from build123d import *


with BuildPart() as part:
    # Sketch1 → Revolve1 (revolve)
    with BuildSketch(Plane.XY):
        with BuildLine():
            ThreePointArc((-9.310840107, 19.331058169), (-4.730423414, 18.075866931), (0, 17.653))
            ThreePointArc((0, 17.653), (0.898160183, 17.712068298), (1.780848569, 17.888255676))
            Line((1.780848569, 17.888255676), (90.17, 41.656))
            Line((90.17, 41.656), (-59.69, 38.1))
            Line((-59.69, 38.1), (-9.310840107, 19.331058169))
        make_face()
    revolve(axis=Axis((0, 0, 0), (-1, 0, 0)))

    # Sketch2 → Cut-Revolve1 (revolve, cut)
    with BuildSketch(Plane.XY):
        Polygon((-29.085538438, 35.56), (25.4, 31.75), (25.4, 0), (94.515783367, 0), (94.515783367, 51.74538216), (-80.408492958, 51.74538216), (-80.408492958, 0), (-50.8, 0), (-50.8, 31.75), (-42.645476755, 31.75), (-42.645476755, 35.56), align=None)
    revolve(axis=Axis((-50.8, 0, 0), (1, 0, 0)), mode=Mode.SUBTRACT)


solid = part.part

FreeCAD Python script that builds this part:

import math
import FreeCAD as App
import Part
import Sketcher

V = App.Vector
Q = App.Units.Quantity


def add_polygon(sketch, points):
    """Adds a closed chain of lines whose ends are joined by coincident constraints."""
    first, n = sketch.GeometryCount, len(points)
    for a, b in zip(points, points[1:] + points[:1]):
        sketch.addGeometry(Part.LineSegment(App.Vector(*a, 0), App.Vector(*b, 0)), False)
    for i in range(n):
        sketch.addConstraint(Sketcher.Constraint("Coincident", first + i, 2, first + (i + 1) % n, 1))

doc = App.newDocument("Part")
body = doc.addObject("PartDesign::Body", "Body")

# Sketch on XY plane
sketch1 = body.newObject("Sketcher::SketchObject", "Sketch")
sketch1.AttachmentSupport = (doc.getObject("XY_Plane"), [""])
sketch1.MapMode = "FlatFace"
sketch1.addGeometry(Part.ArcOfCircle(Part.Circle(V(0, 44.323, 0), V(0, 0, 1), 26.67), math.radians(-110.433064), math.radians(-90)), False)
sketch1.addGeometry(Part.ArcOfCircle(Part.Circle(V(0, 24.511, 0), V(0, 0, 1), 6.858), math.radians(-90), math.radians(-74.949244)), False)
sketch1.addGeometry(Part.LineSegment(V(1.780849, 17.888256, 0), V(90.17, 41.656, 0)), False)
sketch1.addGeometry(Part.LineSegment(V(90.17, 41.656, 0), V(-59.69, 38.1, 0)), False)
sketch1.addGeometry(Part.LineSegment(V(-59.69, 38.1, 0), V(-9.31084, 19.331058, 0)), False)
sketch1.addConstraint(Sketcher.Constraint("Tangent", 0, 2, 1, 1))
sketch1.addConstraint(Sketcher.Constraint("Tangent", 1, 2, 2, 1))
sketch1.addConstraint(Sketcher.Constraint("Coincident", 2, 2, 3, 1))
sketch1.addConstraint(Sketcher.Constraint("Coincident", 3, 2, 4, 1))
sketch1.addConstraint(Sketcher.Constraint("Tangent", 4, 2, 0, 1))
sketch1.addConstraint(Sketcher.Constraint("PointOnObject", 0, 3, -2))
sketch1.addConstraint(Sketcher.Constraint("PointOnObject", 1, 3, -2))
sketch1.addConstraint(Sketcher.Constraint("Radius", 0, Q("1.05 in")))
sketch1.addConstraint(Sketcher.Constraint("Radius", 1, Q("0.27 in")))
sketch1.addConstraint(Sketcher.Constraint("DistanceY", -1, 1, 3, 2, Q("1.5 in")))
sketch1.addConstraint(Sketcher.Constraint("DistanceX", 3, 2, 2, 2, Q("5.9 in")))
sketch1.addConstraint(Sketcher.Constraint("DistanceX", -1, 1, 2, 2, Q("3.55 in")))
sketch1.addConstraint(Sketcher.Constraint("DistanceY", -1, 1, 2, 2, Q("1.64 in")))
sketch1.addConstraint(Sketcher.Constraint("DistanceY", -1, 1, 0, 3, Q("1.745 in")))
revolution = body.newObject("PartDesign::Revolution", "Revolution")
revolution.Profile = sketch1
revolution.ReferenceAxis = (sketch1, ["H_Axis"])
revolution.Angle = 360

# Sketch on XY plane
sketch2 = body.newObject("Sketcher::SketchObject", "Sketch001")
sketch2.AttachmentSupport = (doc.getObject("XY_Plane"), [""])
sketch2.MapMode = "FlatFace"
add_polygon(sketch2, [(-29.085538, 35.56), (25.4, 31.75), (25.4, 0), (94.515783, 0), (94.515783, 51.745382), (-80.408493, 51.745382), (-80.408493, 0), (-50.8, 0), (-50.8, 31.75), (-42.645477, 31.75), (-42.645477, 35.56)])  # lines 0-10
sketch2.addConstraint(Sketcher.Constraint("Vertical", 1))
sketch2.addConstraint(Sketcher.Constraint("Horizontal", 2))
sketch2.addConstraint(Sketcher.Constraint("Vertical", 3))
sketch2.addConstraint(Sketcher.Constraint("Horizontal", 4))
sketch2.addConstraint(Sketcher.Constraint("Vertical", 5))
sketch2.addConstraint(Sketcher.Constraint("Horizontal", 6))
sketch2.addConstraint(Sketcher.Constraint("Vertical", 7))
sketch2.addConstraint(Sketcher.Constraint("Horizontal", 8))
sketch2.addConstraint(Sketcher.Constraint("Vertical", 9))
sketch2.addConstraint(Sketcher.Constraint("Horizontal", 10))
sketch2.addConstraint(Sketcher.Constraint("PointOnObject", 1, 2, -1))
sketch2.addConstraint(Sketcher.Constraint("PointOnObject", 5, 2, -1))
sketch2.addConstraint(Sketcher.Constraint("Horizontal", 0, 2, 7, 2))
sketch2.addConstraint(Sketcher.Constraint("DistanceX", -1, 1, 0, 2, Q("1 in")))
sketch2.addConstraint(Sketcher.Constraint("DistanceX", 6, 2, -1, 1, Q("2 in")))
sketch2.addConstraint(Sketcher.Constraint("Angle", 0, Q("-4 deg")))
sketch2.addConstraint(Sketcher.Constraint("DistanceY", 1, 2, 1, 1, Q("1.25 in")))
sketch2.addConstraint(Sketcher.Constraint("DistanceY", 9, 1, 9, 2, Q("0.15 in")))
sketch2.addConstraint(Sketcher.Constraint("DistanceX", 10, 1, 10, 2, 13.559938))
sketch2.addConstraint(Sketcher.Constraint("DistanceX", 2, 1, 2, 2, 69.115783))
sketch2.addConstraint(Sketcher.Constraint("DistanceX", 4, 2, 4, 1, 174.924276))
sketch2.addConstraint(Sketcher.Constraint("DistanceY", 3, 1, 3, 2, 51.745382))
groove = body.newObject("PartDesign::Groove", "Groove")
groove.Profile = sketch2
groove.ReferenceAxis = (sketch2, ["H_Axis"])
groove.Angle = 360

doc.recompute()
